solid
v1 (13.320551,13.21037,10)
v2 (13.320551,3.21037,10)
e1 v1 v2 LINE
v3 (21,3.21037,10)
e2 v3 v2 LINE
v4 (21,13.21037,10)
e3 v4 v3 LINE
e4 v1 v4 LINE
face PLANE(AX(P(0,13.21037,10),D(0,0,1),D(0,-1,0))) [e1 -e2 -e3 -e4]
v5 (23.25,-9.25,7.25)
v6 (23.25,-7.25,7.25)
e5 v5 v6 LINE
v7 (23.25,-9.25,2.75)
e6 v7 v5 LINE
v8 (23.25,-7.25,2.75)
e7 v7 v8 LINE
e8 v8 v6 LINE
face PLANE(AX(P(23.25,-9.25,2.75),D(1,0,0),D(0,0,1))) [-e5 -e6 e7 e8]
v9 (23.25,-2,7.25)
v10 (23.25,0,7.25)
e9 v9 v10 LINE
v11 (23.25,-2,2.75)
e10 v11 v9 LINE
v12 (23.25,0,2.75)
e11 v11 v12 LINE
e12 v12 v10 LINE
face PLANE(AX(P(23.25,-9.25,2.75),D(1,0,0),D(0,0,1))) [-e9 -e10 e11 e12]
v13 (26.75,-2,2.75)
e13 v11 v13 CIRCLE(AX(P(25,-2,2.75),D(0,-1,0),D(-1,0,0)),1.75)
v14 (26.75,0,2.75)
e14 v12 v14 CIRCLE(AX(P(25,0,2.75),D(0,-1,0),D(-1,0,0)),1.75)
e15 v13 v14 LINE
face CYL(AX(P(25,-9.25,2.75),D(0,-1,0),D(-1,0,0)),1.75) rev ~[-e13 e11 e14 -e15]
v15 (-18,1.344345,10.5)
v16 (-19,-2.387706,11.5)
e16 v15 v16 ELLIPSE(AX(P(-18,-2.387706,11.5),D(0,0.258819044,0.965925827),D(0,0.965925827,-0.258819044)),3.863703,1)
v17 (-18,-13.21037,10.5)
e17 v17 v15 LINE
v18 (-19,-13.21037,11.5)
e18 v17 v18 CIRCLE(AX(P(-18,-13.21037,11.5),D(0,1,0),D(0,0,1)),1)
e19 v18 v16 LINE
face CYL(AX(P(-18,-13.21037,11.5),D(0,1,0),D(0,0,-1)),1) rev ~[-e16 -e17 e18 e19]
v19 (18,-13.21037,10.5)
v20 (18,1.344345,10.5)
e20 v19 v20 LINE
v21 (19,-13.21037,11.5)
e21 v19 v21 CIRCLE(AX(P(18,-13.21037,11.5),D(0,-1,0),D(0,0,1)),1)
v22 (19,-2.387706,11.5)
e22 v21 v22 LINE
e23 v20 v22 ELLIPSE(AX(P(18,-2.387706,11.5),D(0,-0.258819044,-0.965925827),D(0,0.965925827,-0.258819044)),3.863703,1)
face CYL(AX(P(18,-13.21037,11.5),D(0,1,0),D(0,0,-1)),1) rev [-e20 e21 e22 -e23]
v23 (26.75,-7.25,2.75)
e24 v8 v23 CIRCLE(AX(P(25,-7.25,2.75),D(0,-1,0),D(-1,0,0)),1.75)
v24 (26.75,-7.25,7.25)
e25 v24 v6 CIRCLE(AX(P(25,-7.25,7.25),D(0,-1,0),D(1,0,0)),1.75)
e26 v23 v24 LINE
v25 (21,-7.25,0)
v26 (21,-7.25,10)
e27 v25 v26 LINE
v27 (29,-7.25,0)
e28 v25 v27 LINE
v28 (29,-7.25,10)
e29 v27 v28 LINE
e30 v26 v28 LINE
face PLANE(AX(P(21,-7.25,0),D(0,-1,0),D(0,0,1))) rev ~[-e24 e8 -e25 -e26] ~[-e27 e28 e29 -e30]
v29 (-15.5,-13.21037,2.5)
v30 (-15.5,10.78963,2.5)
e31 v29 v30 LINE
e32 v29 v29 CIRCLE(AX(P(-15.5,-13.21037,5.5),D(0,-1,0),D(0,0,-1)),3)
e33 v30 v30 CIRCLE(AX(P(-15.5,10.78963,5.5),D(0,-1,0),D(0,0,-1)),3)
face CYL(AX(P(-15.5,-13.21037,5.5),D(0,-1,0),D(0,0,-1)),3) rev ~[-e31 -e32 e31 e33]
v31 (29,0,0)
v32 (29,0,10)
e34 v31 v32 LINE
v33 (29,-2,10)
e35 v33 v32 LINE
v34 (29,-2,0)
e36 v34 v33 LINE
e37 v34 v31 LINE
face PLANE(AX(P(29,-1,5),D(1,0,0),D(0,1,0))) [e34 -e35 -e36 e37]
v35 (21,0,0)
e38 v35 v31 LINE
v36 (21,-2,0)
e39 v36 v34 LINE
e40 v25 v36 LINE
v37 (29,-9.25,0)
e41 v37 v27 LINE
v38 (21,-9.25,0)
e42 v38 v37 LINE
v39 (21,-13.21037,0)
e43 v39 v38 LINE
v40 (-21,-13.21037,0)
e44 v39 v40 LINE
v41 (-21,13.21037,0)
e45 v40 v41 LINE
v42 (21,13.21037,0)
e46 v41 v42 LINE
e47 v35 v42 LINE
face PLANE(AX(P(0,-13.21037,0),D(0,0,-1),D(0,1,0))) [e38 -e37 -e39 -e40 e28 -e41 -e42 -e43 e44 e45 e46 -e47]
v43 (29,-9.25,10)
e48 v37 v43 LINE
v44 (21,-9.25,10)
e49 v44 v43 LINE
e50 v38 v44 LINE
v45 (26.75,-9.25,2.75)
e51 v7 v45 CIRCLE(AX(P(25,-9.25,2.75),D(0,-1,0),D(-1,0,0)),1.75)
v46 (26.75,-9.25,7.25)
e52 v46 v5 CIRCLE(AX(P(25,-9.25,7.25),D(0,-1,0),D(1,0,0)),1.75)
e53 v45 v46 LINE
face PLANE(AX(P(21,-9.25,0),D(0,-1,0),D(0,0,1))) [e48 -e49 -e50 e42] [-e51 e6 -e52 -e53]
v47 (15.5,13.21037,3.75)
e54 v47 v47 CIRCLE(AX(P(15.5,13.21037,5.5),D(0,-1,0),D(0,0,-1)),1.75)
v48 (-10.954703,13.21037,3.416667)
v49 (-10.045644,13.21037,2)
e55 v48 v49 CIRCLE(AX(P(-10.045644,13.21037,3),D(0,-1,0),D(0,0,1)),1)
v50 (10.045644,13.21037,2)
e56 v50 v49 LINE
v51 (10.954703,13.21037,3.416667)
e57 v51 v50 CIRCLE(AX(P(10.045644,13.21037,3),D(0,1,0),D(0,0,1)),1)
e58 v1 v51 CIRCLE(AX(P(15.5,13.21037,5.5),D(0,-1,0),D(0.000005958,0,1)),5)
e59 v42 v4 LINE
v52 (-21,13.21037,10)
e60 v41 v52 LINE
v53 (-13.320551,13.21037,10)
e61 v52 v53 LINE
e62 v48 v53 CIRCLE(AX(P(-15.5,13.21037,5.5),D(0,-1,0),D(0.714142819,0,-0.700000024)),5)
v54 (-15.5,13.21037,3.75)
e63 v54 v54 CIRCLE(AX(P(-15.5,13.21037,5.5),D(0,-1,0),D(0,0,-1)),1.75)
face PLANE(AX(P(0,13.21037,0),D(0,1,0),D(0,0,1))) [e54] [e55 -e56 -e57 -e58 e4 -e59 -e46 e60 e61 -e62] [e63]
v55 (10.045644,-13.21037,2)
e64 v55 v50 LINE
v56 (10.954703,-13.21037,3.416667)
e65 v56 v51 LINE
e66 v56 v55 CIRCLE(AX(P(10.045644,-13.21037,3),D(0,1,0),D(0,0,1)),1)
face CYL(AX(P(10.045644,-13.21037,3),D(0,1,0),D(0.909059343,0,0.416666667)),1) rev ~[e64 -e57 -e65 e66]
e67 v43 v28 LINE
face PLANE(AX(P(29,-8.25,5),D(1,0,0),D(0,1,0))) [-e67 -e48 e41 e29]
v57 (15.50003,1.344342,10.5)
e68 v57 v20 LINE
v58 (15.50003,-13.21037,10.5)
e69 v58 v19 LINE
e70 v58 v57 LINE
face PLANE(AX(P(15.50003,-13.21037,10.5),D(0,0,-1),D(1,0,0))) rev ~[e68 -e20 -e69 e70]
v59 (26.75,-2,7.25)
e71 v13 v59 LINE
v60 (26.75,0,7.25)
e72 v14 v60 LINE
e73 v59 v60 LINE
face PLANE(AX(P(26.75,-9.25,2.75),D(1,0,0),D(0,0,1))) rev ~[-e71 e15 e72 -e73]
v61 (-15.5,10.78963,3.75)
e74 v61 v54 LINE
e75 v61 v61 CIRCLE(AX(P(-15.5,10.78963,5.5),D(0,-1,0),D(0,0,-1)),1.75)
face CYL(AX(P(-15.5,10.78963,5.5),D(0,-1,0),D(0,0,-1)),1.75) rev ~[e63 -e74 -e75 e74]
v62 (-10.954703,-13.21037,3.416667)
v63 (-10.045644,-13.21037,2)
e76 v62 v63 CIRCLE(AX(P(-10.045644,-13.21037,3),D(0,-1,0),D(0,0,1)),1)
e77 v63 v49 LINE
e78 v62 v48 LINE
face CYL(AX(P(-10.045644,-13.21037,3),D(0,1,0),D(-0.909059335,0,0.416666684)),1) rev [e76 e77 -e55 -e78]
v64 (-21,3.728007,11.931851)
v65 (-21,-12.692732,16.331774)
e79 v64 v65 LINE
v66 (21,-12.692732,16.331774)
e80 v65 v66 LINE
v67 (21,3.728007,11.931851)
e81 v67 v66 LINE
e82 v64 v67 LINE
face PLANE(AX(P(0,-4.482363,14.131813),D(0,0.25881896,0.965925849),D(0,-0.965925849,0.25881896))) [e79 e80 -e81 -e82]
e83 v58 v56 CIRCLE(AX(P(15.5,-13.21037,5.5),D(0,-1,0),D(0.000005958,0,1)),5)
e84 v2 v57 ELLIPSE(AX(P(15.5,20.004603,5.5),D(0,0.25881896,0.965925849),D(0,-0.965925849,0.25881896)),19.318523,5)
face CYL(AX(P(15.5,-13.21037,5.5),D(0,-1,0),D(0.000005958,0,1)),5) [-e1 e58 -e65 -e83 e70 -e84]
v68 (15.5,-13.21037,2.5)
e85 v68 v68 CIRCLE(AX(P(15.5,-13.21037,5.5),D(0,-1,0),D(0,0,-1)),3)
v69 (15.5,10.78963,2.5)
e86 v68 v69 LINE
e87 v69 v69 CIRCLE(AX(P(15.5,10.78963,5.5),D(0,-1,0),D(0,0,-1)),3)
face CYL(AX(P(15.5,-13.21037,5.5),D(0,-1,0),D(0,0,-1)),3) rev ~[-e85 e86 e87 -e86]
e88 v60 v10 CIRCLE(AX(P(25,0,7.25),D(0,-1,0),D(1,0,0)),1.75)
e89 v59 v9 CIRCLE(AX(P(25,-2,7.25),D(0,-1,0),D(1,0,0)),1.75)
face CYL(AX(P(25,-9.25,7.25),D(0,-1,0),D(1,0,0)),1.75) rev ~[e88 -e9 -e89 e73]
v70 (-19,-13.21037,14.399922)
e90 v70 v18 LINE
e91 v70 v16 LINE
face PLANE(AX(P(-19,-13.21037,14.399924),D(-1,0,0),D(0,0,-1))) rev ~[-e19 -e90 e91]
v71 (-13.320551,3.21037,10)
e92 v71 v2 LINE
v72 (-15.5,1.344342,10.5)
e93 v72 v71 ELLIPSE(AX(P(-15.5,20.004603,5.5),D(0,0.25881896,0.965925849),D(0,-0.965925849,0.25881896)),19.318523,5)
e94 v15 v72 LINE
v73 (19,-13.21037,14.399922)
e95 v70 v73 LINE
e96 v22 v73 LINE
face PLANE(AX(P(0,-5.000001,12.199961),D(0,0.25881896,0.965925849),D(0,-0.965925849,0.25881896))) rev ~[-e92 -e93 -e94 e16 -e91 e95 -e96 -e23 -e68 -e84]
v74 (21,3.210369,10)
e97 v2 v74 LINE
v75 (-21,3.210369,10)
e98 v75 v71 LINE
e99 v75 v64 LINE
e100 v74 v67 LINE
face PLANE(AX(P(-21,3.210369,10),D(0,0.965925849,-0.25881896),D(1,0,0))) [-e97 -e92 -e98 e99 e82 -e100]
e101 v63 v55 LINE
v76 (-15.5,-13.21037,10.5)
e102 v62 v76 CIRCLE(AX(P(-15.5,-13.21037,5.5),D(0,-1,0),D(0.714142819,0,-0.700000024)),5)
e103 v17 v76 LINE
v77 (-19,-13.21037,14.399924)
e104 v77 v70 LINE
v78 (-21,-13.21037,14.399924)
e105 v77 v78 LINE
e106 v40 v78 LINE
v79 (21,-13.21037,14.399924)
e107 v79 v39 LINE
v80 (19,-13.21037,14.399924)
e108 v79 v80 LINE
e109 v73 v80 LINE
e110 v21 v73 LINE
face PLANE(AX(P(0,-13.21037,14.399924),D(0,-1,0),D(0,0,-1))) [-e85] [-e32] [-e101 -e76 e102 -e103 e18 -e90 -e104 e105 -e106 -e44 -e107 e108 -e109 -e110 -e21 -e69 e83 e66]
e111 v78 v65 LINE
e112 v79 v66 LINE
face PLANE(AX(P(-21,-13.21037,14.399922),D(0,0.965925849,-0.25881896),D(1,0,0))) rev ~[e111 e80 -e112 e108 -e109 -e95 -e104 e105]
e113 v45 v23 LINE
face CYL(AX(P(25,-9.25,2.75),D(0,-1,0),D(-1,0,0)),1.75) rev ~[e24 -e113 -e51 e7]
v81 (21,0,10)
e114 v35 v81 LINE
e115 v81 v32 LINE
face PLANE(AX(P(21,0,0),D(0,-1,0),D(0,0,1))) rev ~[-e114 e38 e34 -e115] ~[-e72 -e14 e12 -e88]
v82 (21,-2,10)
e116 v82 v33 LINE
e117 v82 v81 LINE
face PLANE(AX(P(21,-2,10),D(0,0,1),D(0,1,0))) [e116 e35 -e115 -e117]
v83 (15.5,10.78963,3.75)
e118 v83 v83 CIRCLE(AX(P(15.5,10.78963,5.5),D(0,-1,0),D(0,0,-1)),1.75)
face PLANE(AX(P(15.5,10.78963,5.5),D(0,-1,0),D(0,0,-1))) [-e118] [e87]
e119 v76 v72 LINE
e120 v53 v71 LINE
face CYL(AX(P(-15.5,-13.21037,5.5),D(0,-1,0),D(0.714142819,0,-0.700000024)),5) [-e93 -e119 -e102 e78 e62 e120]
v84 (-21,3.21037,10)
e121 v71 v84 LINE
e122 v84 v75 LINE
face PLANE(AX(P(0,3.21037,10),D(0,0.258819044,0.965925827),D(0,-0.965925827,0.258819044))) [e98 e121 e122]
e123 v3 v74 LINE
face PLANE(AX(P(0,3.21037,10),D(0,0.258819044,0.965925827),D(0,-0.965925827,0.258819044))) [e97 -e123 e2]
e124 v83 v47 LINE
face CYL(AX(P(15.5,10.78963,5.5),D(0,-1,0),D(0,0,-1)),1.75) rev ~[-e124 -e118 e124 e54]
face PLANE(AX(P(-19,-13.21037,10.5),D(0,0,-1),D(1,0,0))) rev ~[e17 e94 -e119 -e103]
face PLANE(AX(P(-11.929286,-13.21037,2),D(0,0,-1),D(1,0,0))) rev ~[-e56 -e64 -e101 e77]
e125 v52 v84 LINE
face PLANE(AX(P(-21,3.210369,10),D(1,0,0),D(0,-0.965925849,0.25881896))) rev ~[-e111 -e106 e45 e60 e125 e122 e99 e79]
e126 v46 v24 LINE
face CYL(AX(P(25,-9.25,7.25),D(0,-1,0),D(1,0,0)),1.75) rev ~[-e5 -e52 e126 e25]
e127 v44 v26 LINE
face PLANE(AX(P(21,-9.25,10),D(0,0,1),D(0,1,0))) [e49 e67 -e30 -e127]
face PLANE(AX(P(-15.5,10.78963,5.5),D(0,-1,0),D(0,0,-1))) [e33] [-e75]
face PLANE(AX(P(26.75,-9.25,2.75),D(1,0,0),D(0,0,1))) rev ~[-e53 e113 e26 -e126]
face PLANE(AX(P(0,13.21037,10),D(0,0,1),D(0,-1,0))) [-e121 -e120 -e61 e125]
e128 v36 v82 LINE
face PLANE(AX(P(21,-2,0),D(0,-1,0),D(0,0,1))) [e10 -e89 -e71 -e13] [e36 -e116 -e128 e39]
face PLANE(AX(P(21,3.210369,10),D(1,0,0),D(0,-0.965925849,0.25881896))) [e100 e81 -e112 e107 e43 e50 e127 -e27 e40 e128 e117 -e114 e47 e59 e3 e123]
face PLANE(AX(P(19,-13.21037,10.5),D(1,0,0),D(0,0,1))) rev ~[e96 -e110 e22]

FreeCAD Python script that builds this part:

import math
import FreeCAD as App
import Part
import Sketcher

V = App.Vector
Q = App.Units.Quantity


def edges_at(feature, points):
    """Names of the edges that pass closest to the given points."""
    edges = feature.Shape.Edges
    near = lambda p: min(range(len(edges)), key=lambda i: edges[i].distToShape(Part.Vertex(*p))[0])
    return sorted({f"Edge{near(p) + 1}" for p in points})

doc = App.newDocument("Part")
body = doc.addObject("PartDesign::Body", "Body")

# Sketch on YZ plane
sketch1 = body.newObject("Sketcher::SketchObject", "Sketch")
sketch1.AttachmentSupport = (doc.getObject("YZ_Plane"), [""])
sketch1.MapMode = "FlatFace"
sketch1.addGeometry([
    Part.LineSegment(V(-13, 0, 0), V(13, 0, 0)),  # 0
    Part.LineSegment(V(13, 0, 0), V(13, 10, 0)),  # 1
    Part.LineSegment(V(13, 10, 0), V(3, 10, 0)),  # 2
    Part.LineSegment(V(3, 10, 0), V(-13, 14, 0)),  # 3
    Part.LineSegment(V(-13, 14, 0), V(-13, 0, 0)),  # 4
], False)
sketch1.addConstraint([
    Sketcher.Constraint("Coincident", 0, 2, 1, 1),
    Sketcher.Constraint("Coincident", 1, 2, 2, 1),
    Sketcher.Constraint("Coincident", 2, 2, 3, 1),
    Sketcher.Constraint("Coincident", 3, 2, 4, 1),
    Sketcher.Constraint("Coincident", 4, 2, 0, 1),
    Sketcher.Constraint("Horizontal", 0),
    Sketcher.Constraint("Vertical", 1),
    Sketcher.Constraint("Horizontal", 2),
    Sketcher.Constraint("Vertical", 4),
    Sketcher.Constraint("Symmetric", 0, 2, 4, 2, -1, 1),
    Sketcher.Constraint("Equal", 2, 1),
    Sketcher.Constraint("DistanceX", 2, 2, 2, 1, 10.0),
    Sketcher.Constraint("Angle", 3, Q("165 deg")),
    Sketcher.Constraint("Distance", 3, 17.000001),
])
pad1 = body.newObject("PartDesign::Pad", "Pad")
pad1.Profile = sketch1
pad1.Length = 42
pad1.Midplane = True

# Sketch on XZ plane
sketch2 = body.newObject("Sketcher::SketchObject", "Sketch001")
sketch2.AttachmentSupport = (doc.getObject("XZ_Plane"), [""])
sketch2.MapMode = "FlatFace"
sketch2.AttachmentOffset = App.Placement(V(0, 0, 13.21037), App.Rotation())
sketch2.addGeometry([
    Part.Circle(V(-15.5, 5.5, 0), V(0, 0, 1), 3),
    Part.Circle(V(15.5, 5.5, 0), V(0, 0, 1), 3),
], False)
sketch2.addConstraint([
    Sketcher.Constraint("Equal", 0, 1),
    Sketcher.Constraint("Symmetric", 0, 3, 1, 3, -2),
    Sketcher.Constraint("Diameter", 0, 6.0),
    Sketcher.Constraint("DistanceX", 0, 3, 1, 3, 31.0),
    Sketcher.Constraint("DistanceY", -1, 1, 0, 3, 5.5),
])
pocket1 = body.newObject("PartDesign::Pocket", "Pocket")
pocket1.Profile = sketch2
pocket1.Length = 24

# Sketch on XZ plane
sketch3 = body.newObject("Sketcher::SketchObject", "Sketch002")
sketch3.AttachmentSupport = (doc.getObject("XZ_Plane"), [""])
sketch3.MapMode = "FlatFace"
sketch3.AttachmentOffset = App.Placement(V(0, 0, 13.21037), App.Rotation())
sketch3.addGeometry([
    Part.LineSegment(V(-11.9, 2, 0), V(11.9, 2, 0)),  # 0
    Part.ArcOfCircle(Part.Circle(V(15.5, 5.5, 0), V(0, 0, 1), 5), math.radians(90), math.radians(224)),  # 1
    Part.LineSegment(V(15.5, 10.5, 0), V(19, 10.5, 0)),  # 2
    Part.LineSegment(V(19, 10.5, 0), V(19, 14.4, 0)),  # 3
    Part.LineSegment(V(19, 14.4, 0), V(-19, 14.4, 0)),  # 4
    Part.LineSegment(V(-19, 14.4, 0), V(-19, 10.5, 0)),  # 5
    Part.LineSegment(V(-19, 10.5, 0), V(-15.5, 10.5, 0)),  # 6
    Part.ArcOfCircle(Part.Circle(V(-15.5, 5.5, 0), V(0, 0, 1), 5), math.radians(-44), math.radians(90)),  # 7
], False)
sketch3.addConstraint([
    Sketcher.Constraint("Coincident", 0, 2, 1, 2),
    Sketcher.Constraint("Coincident", 1, 1, 2, 1),
    Sketcher.Constraint("Coincident", 2, 2, 3, 1),
    Sketcher.Constraint("Coincident", 3, 2, 4, 1),
    Sketcher.Constraint("Coincident", 4, 2, 5, 1),
    Sketcher.Constraint("Coincident", 5, 2, 6, 1),
    Sketcher.Constraint("Tangent", 6, 2, 7, 2),
    Sketcher.Constraint("Coincident", 7, 1, 0, 1),
    Sketcher.Constraint("Horizontal", 0),
    Sketcher.Constraint("Horizontal", 2),
    Sketcher.Constraint("Vertical", 3),
    Sketcher.Constraint("Horizontal", 4),
    Sketcher.Constraint("Vertical", 5),
    Sketcher.Constraint("Horizontal", 6),
    Sketcher.Constraint("Equal", 1, 7),
    Sketcher.Constraint("Symmetric", 1, 3, 7, 3, -2),
    Sketcher.Constraint("Radius", 1, 5.0),
    Sketcher.Constraint("DistanceX", 4, 2, 4, 1, 38.0),
    Sketcher.Constraint("DistanceX", 6, 1, 6, 2, 3.5),
    Sketcher.Constraint("DistanceY", -1, 1, 0, 2, 2.0),
    Sketcher.Constraint("DistanceX", -1, 1, 2, 2, 19.0),
    Sketcher.Constraint("DistanceY", -1, 1, 1, 3, 5.5),
    Sketcher.Constraint("DistanceX", 2, 1, 2, 2, 3.49997),
    Sketcher.Constraint("DistanceY", 3, 1, 3, 2, 3.899924),
])
pocket2 = body.newObject("PartDesign::Pocket", "Pocket001")
pocket2.Profile = sketch3
pocket2.Type = "ThroughAll"

# Sketch on XZ plane
sketch4 = body.newObject("Sketcher::SketchObject", "Sketch003")
sketch4.AttachmentSupport = (doc.getObject("XZ_Plane"), [""])
sketch4.MapMode = "FlatFace"
sketch4.AttachmentOffset = App.Placement(V(0, 0, -10.78963), App.Rotation())
sketch4.addGeometry([
    Part.Circle(V(15.5, 5.5, 0), V(0, 0, 1), 1.8),
    Part.Circle(V(-15.5, 5.5, 0), V(0, 0, 1), 1.8),
], False)
sketch4.addConstraint([
    Sketcher.Constraint("Equal", 0, 1),
    Sketcher.Constraint("Symmetric", 0, 3, 1, 3, -2),
    Sketcher.Constraint("Diameter", 0, 3.5),
    Sketcher.Constraint("DistanceX", 1, 3, 0, 3, 31.0),
    Sketcher.Constraint("DistanceY", -1, 1, 0, 3, 5.5),
])
pocket3 = body.newObject("PartDesign::Pocket", "Pocket002")
pocket3.Profile = sketch4
pocket3.Type = "ThroughAll"
doc.recompute()

fillet = body.newObject("PartDesign::Fillet", "Fillet")
fillet.Base = (pocket3, edges_at(pocket3, [(-11.929, 0, 2), (11.929, 0, 2)]))
fillet.Radius = 1
doc.recompute()

fillet2 = body.newObject("PartDesign::Fillet", "Fillet001")
fillet2.Base = (fillet, edges_at(fillet, [(-19, -5.933, 10.5), (19, -5.933, 10.5)]))
fillet2.Radius = 1

# Sketch on an angled plane
sketch5 = body.newObject("Sketcher::SketchObject", "Sketch004")
sketch5.Placement = App.Placement(V(0, 2.715054, 10.132719), App.Rotation(V(0, -0.965925849, 0.25881896), V(1, 0, 0), V(0, 0.25881896, 0.965925849), "ZXY"))
sketch5.addGeometry([
    Part.LineSegment(V(-1, 21, 0), V(-1, -21, 0)),
    Part.LineSegment(V(-1, -21, 0), V(16, -21, 0)),
    Part.LineSegment(V(16, -21, 0), V(16, 21, 0)),
    Part.LineSegment(V(16, 21, 0), V(-1, 21, 0)),
], False)
sketch5.addConstraint([
    Sketcher.Constraint("Coincident", 0, 2, 1, 1),
    Sketcher.Constraint("Coincident", 1, 2, 2, 1),
    Sketcher.Constraint("Coincident", 2, 2, 3, 1),
    Sketcher.Constraint("Coincident", 3, 2, 0, 1),
    Sketcher.Constraint("Vertical", 0),
    Sketcher.Constraint("Horizontal", 1),
    Sketcher.Constraint("Vertical", 2),
    Sketcher.Constraint("Horizontal", 3),
    Sketcher.Constraint("DistanceX", 1, 1, 1, 2, 17.0),
    Sketcher.Constraint("DistanceY", 0, 2, 0, 1, 42.0),
    Sketcher.Constraint("DistanceY", 0, 2, -1, 1, 21.0),
    Sketcher.Constraint("DistanceX", 0, 2, -1, 1, 0.512788),
])
pad2 = body.newObject("PartDesign::Pad", "Pad001")
pad2.Profile = sketch5
pad2.Length = 2

# Sketch on YZ plane
sketch6 = body.newObject("Sketcher::SketchObject", "Sketch005")
sketch6.AttachmentSupport = (doc.getObject("YZ_Plane"), [""])
sketch6.MapMode = "FlatFace"
sketch6.AttachmentOffset = App.Placement(V(0, 0, 21), App.Rotation())
sketch6.addGeometry([
    Part.LineSegment(V(-9.2, 10, 0), V(-9.2, 0, 0)),  # 0
    Part.LineSegment(V(-9.2, 0, 0), V(-7.2, 0, 0)),  # 1
    Part.LineSegment(V(-7.2, 0, 0), V(-7.2, 10, 0)),  # 2
    Part.LineSegment(V(-7.2, 10, 0), V(-9.2, 10, 0)),  # 3
    Part.LineSegment(V(-2, 10, 0), V(-2, 0, 0)),  # 4
    Part.LineSegment(V(-2, 0, 0), V(0, 0, 0)),  # 5
    Part.LineSegment(V(0, 0, 0), V(0, 10, 0)),  # 6
    Part.LineSegment(V(0, 10, 0), V(-2, 10, 0)),  # 7
], False)
sketch6.addConstraint([
    Sketcher.Constraint("Coincident", 0, 2, 1, 1),
    Sketcher.Constraint("Coincident", 1, 2, 2, 1),
    Sketcher.Constraint("Coincident", 2, 2, 3, 1),
    Sketcher.Constraint("Coincident", 3, 2, 0, 1),
    Sketcher.Constraint("Coincident", 4, 2, 5, 1),
    Sketcher.Constraint("Coincident", 5, 2, 6, 1),
    Sketcher.Constraint("Coincident", 6, 2, 7, 1),
    Sketcher.Constraint("Coincident", 7, 2, 4, 1),
    Sketcher.Constraint("Vertical", 0),
    Sketcher.Constraint("Horizontal", 1),
    Sketcher.Constraint("Vertical", 2),
    Sketcher.Constraint("Horizontal", 3),
    Sketcher.Constraint("Vertical", 4),
    Sketcher.Constraint("Horizontal", 5),
    Sketcher.Constraint("Vertical", 6),
    Sketcher.Constraint("Horizontal", 7),
    Sketcher.Constraint("Coincident", 5, 2, -1, 1),
    Sketcher.Constraint("PointOnObject", 0, 2, -1),
    Sketcher.Constraint("Horizontal", 3, 2, 6, 2),
    Sketcher.Constraint("Equal", 3, 5),
    Sketcher.Constraint("DistanceX", 1, 1, 1, 2, 2.0),
    Sketcher.Constraint("DistanceY", 0, 2, 0, 1, 10.0),
    Sketcher.Constraint("DistanceX", 0, 2, -1, 1, 9.25),
])
pad3 = body.newObject("PartDesign::Pad", "Pad002")
pad3.Profile = sketch6
pad3.Length = 8

# Sketch on XZ plane
sketch7 = body.newObject("Sketcher::SketchObject", "Sketch006")
sketch7.AttachmentSupport = (doc.getObject("XZ_Plane"), [""])
sketch7.MapMode = "FlatFace"
sketch7.AttachmentOffset = App.Placement(V(0, 0, 9.25), App.Rotation())
sketch7.addGeometry([
    Part.ArcOfCircle(Part.Circle(V(25, 2.8, 0), V(0, 0, 1), 1.8), math.radians(180), math.radians(360)),
    Part.LineSegment(V(26.8, 2.8, 0), V(26.8, 7.2, 0)),
    Part.ArcOfCircle(Part.Circle(V(25, 7.2, 0), V(0, 0, 1), 1.8), math.radians(0), math.radians(180)),
    Part.LineSegment(V(23.2, 7.2, 0), V(23.2, 2.8, 0)),
], False)
sketch7.addConstraint([
    Sketcher.Constraint("Tangent", 0, 2, 1, 1),
    Sketcher.Constraint("Tangent", 1, 2, 2, 1),
    Sketcher.Constraint("Tangent", 2, 2, 3, 1),
    Sketcher.Constraint("Tangent", 3, 2, 0, 1),
    Sketcher.Constraint("Vertical", 1),
    Sketcher.Constraint("Vertical", 3),
    Sketcher.Constraint("Radius", 0, 1.75),
    Sketcher.Constraint("DistanceY", 1, 1, 1, 2, 4.5),
    Sketcher.Constraint("DistanceX", -1, 1, 0, 3, 25.0),
    Sketcher.Constraint("DistanceY", -1, 1, 0, 3, 2.75),
])
pocket4 = body.newObject("PartDesign::Pocket", "Pocket003")
pocket4.Profile = sketch7
pocket4.Type = "ThroughAll"

doc.recompute()
